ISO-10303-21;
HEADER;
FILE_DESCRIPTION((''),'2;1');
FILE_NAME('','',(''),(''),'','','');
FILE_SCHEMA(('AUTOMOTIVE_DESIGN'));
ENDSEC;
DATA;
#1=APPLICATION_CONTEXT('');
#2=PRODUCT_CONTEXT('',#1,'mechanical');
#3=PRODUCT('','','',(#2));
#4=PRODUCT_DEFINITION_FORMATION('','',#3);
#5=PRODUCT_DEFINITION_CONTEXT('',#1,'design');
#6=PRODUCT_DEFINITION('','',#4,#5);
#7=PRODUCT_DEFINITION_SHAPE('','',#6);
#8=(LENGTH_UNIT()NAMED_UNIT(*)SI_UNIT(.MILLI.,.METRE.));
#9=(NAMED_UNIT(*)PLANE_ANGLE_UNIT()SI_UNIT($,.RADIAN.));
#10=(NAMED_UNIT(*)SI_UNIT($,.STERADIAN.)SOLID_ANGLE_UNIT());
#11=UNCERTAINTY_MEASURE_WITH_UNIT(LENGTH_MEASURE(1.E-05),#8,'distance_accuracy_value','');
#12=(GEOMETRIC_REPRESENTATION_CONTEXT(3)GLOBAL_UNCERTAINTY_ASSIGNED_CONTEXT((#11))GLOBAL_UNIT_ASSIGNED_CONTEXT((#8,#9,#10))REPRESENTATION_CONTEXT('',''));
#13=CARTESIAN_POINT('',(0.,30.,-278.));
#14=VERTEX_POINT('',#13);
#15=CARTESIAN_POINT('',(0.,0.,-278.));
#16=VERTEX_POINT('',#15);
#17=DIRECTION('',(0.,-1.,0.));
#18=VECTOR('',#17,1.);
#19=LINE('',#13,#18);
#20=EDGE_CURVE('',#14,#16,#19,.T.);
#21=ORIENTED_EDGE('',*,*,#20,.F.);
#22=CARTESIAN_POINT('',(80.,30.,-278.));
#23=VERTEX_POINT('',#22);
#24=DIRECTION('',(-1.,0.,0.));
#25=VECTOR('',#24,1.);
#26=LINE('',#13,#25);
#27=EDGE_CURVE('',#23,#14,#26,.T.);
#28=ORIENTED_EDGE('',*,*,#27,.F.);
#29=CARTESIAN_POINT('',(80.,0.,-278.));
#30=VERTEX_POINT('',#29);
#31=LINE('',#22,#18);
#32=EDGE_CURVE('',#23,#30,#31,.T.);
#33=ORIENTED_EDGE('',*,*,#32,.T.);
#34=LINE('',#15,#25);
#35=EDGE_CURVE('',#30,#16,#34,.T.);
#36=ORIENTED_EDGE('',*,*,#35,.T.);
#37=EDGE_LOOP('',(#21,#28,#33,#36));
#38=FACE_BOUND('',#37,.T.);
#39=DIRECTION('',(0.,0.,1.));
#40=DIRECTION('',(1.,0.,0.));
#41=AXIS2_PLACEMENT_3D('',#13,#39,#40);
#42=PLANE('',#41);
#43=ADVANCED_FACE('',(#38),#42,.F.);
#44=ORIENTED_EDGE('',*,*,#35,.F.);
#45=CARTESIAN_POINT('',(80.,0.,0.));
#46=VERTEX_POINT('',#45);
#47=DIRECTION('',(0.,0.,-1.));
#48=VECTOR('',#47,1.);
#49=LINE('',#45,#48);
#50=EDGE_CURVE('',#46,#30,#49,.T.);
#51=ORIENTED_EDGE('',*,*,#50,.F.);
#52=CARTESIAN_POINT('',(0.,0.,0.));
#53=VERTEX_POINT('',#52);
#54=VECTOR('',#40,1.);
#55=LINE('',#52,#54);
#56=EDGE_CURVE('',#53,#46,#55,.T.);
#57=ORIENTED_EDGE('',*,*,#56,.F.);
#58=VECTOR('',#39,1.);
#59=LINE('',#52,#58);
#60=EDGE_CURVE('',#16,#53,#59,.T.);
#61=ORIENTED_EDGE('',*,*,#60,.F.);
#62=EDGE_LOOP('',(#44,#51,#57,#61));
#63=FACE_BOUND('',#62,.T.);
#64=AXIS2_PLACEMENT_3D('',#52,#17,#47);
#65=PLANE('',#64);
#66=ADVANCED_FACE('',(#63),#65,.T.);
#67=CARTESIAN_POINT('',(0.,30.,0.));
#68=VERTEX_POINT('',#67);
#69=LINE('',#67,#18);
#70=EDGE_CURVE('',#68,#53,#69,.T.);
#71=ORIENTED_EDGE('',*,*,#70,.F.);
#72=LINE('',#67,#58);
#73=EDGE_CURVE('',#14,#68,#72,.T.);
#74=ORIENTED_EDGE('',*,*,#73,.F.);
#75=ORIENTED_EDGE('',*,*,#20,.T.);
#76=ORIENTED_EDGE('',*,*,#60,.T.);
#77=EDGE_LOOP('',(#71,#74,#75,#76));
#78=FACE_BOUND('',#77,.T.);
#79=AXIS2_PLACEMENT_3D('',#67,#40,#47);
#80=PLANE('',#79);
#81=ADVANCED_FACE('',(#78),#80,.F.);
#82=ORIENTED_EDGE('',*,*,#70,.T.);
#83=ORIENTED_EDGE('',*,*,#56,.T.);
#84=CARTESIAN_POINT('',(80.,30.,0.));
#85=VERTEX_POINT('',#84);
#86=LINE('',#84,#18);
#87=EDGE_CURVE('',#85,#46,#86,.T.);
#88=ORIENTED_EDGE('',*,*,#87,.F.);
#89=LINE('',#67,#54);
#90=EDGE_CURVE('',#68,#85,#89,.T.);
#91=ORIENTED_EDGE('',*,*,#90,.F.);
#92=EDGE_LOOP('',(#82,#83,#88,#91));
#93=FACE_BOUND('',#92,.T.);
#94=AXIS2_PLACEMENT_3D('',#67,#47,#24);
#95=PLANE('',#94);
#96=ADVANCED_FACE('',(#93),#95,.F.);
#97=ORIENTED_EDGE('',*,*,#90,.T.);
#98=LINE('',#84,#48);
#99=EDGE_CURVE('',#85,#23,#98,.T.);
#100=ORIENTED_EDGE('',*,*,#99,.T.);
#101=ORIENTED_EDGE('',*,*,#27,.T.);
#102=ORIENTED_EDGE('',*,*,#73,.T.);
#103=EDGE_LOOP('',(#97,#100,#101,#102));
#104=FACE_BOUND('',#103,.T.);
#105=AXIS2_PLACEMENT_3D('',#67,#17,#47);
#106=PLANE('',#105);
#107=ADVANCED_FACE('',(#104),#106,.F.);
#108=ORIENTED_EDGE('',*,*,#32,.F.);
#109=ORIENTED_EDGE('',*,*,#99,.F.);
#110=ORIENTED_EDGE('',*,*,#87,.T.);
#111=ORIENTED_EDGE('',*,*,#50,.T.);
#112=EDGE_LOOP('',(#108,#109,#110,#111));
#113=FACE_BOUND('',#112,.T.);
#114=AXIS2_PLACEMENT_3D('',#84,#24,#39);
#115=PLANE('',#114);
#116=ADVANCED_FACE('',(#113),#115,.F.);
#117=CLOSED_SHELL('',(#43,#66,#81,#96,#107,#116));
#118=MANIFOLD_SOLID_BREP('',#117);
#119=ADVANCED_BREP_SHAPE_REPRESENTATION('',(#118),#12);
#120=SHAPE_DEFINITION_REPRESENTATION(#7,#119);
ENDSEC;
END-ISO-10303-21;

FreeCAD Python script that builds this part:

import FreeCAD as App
import Part
import Sketcher

V = App.Vector

doc = App.newDocument("Part")
body = doc.addObject("PartDesign::Body", "Body")

# Sketch on XZ plane
sketch1 = body.newObject("Sketcher::SketchObject", "Sketch")
sketch1.AttachmentSupport = (doc.getObject("XZ_Plane"), [""])
sketch1.MapMode = "FlatFace"
sketch1.addGeometry([
    Part.LineSegment(V(0, -278, 0), V(0, 0, 0)),
    Part.LineSegment(V(0, 0, 0), V(80, 0, 0)),
    Part.LineSegment(V(80, 0, 0), V(80, -278, 0)),
    Part.LineSegment(V(80, -278, 0), V(0, -278, 0)),
], False)
sketch1.addConstraint([
    Sketcher.Constraint("Coincident", 0, 2, 1, 1),
    Sketcher.Constraint("Coincident", 1, 2, 2, 1),
    Sketcher.Constraint("Coincident", 2, 2, 3, 1),
    Sketcher.Constraint("Coincident", 3, 2, 0, 1),
    Sketcher.Constraint("Vertical", 0),
    Sketcher.Constraint("Horizontal", 1),
    Sketcher.Constraint("Vertical", 2),
    Sketcher.Constraint("Horizontal", 3),
    Sketcher.Constraint("Coincident", 0, 2, -1, 1),
    Sketcher.Constraint("DistanceX", 1, 1, 1, 2, 80.0),
    Sketcher.Constraint("DistanceY", 0, 1, 0, 2, 278.0),
])
pad1 = body.newObject("PartDesign::Pad", "Pad")
pad1.Profile = sketch1
pad1.Length = 30
pad1.Reversed = True

doc.recompute()
